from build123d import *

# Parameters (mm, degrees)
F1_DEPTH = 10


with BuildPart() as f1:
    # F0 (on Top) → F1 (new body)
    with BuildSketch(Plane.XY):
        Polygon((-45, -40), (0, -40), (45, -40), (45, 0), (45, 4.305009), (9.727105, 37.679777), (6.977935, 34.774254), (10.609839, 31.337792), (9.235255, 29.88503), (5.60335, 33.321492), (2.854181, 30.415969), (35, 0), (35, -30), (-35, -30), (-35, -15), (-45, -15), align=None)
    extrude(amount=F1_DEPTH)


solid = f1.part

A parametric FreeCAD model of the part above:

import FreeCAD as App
import Part
import Sketcher
from FreeCAD import Vector


def add_polygon(sketch, points):
    """Adds a closed chain of lines whose ends are joined by coincident constraints."""
    first, n = sketch.GeometryCount, len(points)
    for a, b in zip(points, points[1:] + points[:1]):
        sketch.addGeometry(Part.LineSegment(App.Vector(*a, 0), App.Vector(*b, 0)), False)
    for i in range(n):
        sketch.addConstraint(Sketcher.Constraint("Coincident", first + i, 2, first + (i + 1) % n, 1))

doc = App.newDocument("Part")
body = doc.addObject("PartDesign::Body", "Body")

# Sketch on XY plane
sketch1 = body.newObject("Sketcher::SketchObject", "Sketch")
sketch1.AttachmentSupport = (doc.getObject("XY_Plane"), [""])
sketch1.MapMode = "FlatFace"
add_polygon(sketch1, [(-45, -40), (45, -40), (45, 4.3), (9.7, 37.7), (7, 34.8), (10.6, 31.3), (9.2, 29.9), (5.6, 33.3), (2.9, 30.4), (35, 0), (35, -30), (-35, -30), (-35, -15), (-45, -15)])  # lines 0-13
sketch1.addConstraint(Sketcher.Constraint("Horizontal", 0))
sketch1.addConstraint(Sketcher.Constraint("Vertical", 1))
sketch1.addConstraint(Sketcher.Constraint("Vertical", 9))
sketch1.addConstraint(Sketcher.Constraint("Horizontal", 10))
sketch1.addConstraint(Sketcher.Constraint("Vertical", 11))
sketch1.addConstraint(Sketcher.Constraint("Horizontal", 12))
sketch1.addConstraint(Sketcher.Constraint("Vertical", 13))
sketch1.addConstraint(Sketcher.Constraint("PointOnObject", 8, 2, -1))
sketch1.addConstraint(Sketcher.Constraint("Perpendicular", 2, 3))
sketch1.addConstraint(Sketcher.Constraint("Perpendicular", 3, 4))
sketch1.addConstraint(Sketcher.Constraint("Perpendicular", 4, 5))
sketch1.addConstraint(Sketcher.Constraint("Perpendicular", 5, 6))
sketch1.addConstraint(Sketcher.Constraint("Perpendicular", 6, 7))
sketch1.addConstraint(Sketcher.Constraint("Perpendicular", 7, 8))
sketch1.addConstraint(Sketcher.Constraint("Equal", 4, 6))
sketch1.addConstraint(Sketcher.Constraint("Equal", 3, 7))
sketch1.addConstraint(Sketcher.Constraint("DistanceX", 0, 1, 0, 2, 90.0))
sketch1.addConstraint(Sketcher.Constraint("DistanceX", 10, 2, 10, 1, 70.0))
sketch1.addConstraint(Sketcher.Constraint("DistanceX", 12, 2, 12, 1, 10.0))
sketch1.addConstraint(Sketcher.Constraint("DistanceY", 9, 2, 9, 1, 30.0))
sketch1.addConstraint(Sketcher.Constraint("DistanceY", 11, 1, 11, 2, 15.0))
sketch1.addConstraint(Sketcher.Constraint("DistanceY", 13, 2, 13, 1, 25.0))
sketch1.addConstraint(Sketcher.Constraint("Distance", 3, 4.0))
sketch1.addConstraint(Sketcher.Constraint("Distance", 4, 5.0))
sketch1.addConstraint(Sketcher.Constraint("Distance", 5, 2.0))
sketch1.addConstraint(Sketcher.Constraint("DistanceX", -1, 1, 0, 2, 45.0))
sketch1.addConstraint(Sketcher.Constraint("DistanceY", 1, 1, 1, 2, 44.305009))
sketch1.addConstraint(Sketcher.Constraint("Distance", 2, 48.55978))
pad1 = body.newObject("PartDesign::Pad", "Pad")
pad1.Profile = sketch1
pad1.Length = 10

doc.recompute()
